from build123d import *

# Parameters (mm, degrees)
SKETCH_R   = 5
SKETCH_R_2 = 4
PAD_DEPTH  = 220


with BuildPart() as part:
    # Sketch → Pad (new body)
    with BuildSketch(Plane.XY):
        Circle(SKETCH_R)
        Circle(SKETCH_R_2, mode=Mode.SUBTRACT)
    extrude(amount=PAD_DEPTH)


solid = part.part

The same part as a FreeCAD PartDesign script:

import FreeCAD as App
import Part
import Sketcher

doc = App.newDocument("Part")
body = doc.addObject("PartDesign::Body", "Body")

# Sketch on XY plane
sketch1 = body.newObject("Sketcher::SketchObject", "Sketch")
sketch1.AttachmentSupport = (doc.getObject("XY_Plane"), [""])
sketch1.MapMode = "FlatFace"
sketch1.addGeometry(Part.Circle(App.Vector(0, 0, 0), App.Vector(0, 0, 1), 5), False)
sketch1.addGeometry(Part.Circle(App.Vector(0, 0, 0), App.Vector(0, 0, 1), 4), False)
sketch1.addConstraint(Sketcher.Constraint("Coincident", 0, 3, -1, 1))
sketch1.addConstraint(Sketcher.Constraint("Coincident", 1, 3, -1, 1))
sketch1.addConstraint(Sketcher.Constraint("Diameter", 0, 10.0))
sketch1.addConstraint(Sketcher.Constraint("Diameter", 1, 8.0))
pad1 = body.newObject("PartDesign::Pad", "Pad")
pad1.Profile = sketch1
pad1.Length = 220

doc.recompute()
